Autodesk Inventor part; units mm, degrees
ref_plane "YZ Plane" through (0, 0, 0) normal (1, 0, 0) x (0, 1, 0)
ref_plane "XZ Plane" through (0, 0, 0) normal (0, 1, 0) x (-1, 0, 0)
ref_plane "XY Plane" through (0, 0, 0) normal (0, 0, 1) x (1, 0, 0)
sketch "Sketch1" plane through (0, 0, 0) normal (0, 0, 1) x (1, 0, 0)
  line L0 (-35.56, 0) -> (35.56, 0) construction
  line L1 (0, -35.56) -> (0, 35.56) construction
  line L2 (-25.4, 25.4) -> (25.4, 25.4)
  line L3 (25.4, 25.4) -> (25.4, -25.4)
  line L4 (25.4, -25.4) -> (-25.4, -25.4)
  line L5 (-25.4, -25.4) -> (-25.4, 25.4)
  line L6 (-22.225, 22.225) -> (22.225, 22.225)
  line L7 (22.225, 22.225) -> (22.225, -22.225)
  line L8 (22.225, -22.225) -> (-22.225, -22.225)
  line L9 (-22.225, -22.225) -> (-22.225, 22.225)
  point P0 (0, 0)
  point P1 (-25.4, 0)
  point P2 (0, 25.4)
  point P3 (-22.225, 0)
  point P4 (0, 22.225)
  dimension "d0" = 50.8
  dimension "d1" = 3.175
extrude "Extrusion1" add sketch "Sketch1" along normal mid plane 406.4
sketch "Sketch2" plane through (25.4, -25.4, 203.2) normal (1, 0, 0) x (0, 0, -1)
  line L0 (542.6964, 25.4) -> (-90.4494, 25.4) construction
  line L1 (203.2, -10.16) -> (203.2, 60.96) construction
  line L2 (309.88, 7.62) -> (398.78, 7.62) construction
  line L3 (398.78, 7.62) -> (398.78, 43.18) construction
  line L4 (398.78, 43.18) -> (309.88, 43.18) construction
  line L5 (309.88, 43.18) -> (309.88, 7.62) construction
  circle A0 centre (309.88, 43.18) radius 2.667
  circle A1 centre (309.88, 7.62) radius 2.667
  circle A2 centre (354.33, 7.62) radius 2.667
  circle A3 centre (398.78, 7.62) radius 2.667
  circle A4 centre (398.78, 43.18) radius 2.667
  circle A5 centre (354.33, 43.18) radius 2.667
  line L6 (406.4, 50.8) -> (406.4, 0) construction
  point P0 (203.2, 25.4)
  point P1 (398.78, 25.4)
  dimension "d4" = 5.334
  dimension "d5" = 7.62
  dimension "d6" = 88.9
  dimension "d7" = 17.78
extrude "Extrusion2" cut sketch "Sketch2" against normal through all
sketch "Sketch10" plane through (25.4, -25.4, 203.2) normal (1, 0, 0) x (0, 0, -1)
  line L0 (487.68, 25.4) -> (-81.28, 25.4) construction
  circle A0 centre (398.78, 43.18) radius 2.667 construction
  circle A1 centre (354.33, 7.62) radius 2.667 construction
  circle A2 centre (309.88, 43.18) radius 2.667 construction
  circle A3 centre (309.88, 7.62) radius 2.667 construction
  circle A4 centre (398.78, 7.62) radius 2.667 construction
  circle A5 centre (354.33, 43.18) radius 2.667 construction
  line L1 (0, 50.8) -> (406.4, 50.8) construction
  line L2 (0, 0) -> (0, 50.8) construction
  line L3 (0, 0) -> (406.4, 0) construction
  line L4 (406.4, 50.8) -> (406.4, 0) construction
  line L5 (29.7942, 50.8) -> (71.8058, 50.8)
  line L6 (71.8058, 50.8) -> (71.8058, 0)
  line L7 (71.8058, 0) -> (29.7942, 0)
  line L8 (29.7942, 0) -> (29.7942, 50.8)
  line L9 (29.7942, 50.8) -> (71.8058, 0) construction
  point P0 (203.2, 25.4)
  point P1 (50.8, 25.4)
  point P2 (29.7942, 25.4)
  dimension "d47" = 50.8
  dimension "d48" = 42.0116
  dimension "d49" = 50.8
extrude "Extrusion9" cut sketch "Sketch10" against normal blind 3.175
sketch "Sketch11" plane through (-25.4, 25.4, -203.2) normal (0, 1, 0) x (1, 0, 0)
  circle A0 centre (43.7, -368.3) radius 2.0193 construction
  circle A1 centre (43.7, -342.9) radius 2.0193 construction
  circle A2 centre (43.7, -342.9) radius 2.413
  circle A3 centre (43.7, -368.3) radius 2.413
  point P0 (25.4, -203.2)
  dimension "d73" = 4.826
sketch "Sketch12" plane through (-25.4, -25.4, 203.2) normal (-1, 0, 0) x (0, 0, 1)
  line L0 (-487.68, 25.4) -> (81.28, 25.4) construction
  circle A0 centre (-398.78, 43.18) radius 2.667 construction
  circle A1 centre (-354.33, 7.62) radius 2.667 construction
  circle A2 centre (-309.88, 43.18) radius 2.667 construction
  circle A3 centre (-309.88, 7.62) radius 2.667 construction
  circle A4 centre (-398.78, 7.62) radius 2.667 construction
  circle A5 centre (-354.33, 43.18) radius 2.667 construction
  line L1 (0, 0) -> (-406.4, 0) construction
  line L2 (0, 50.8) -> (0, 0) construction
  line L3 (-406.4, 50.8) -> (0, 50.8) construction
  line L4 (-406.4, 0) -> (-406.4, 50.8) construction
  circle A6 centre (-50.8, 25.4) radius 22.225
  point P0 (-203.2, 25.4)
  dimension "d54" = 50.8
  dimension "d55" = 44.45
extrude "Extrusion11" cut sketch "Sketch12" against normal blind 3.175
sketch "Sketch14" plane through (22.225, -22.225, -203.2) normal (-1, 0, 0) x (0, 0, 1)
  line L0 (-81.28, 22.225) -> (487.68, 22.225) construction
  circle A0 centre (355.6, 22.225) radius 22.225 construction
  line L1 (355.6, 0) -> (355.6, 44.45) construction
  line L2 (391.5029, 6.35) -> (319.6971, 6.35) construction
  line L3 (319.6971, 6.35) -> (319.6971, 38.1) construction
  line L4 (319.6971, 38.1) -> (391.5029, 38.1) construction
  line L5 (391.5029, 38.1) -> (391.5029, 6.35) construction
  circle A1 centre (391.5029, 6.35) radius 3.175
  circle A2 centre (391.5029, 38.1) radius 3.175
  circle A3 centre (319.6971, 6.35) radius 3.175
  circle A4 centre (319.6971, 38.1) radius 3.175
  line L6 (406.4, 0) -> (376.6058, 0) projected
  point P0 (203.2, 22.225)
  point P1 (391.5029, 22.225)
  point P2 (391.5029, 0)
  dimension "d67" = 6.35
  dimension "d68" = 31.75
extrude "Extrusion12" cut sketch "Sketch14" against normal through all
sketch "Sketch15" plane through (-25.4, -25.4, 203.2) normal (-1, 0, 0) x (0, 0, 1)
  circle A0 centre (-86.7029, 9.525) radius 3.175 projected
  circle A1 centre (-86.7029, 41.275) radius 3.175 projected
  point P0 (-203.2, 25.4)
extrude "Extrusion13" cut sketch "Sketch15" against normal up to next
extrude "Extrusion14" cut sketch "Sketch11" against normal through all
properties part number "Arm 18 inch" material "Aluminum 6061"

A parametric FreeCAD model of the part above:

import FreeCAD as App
import Part
import Sketcher
Q = App.Units.Quantity


def add_polygon(sketch, points):
    """Adds a closed chain of lines whose ends are joined by coincident constraints."""
    first, n = sketch.GeometryCount, len(points)
    for a, b in zip(points, points[1:] + points[:1]):
        sketch.addGeometry(Part.LineSegment(App.Vector(*a, 0), App.Vector(*b, 0)), False)
    for i in range(n):
        sketch.addConstraint(Sketcher.Constraint("Coincident", first + i, 2, first + (i + 1) % n, 1))

doc = App.newDocument("Part")
body = doc.addObject("PartDesign::Body", "Body")

sketch1 = body.newObject("Sketcher::SketchObject", "Sketch")
sketch1.AttachmentSupport = (doc.getObject("XY_Plane"), [""])
sketch1.MapMode = "FlatFace"
add_polygon(sketch1, [(25, 25), (-25, 25), (-25, -25), (25, -25)])
add_polygon(sketch1, [(-22, -22), (-22, 22), (22, 22), (22, -22)])
sketch1.addConstraint(Sketcher.Constraint("Horizontal", 0))
sketch1.addConstraint(Sketcher.Constraint("Vertical", 1))
sketch1.addConstraint(Sketcher.Constraint("Horizontal", 2))
sketch1.addConstraint(Sketcher.Constraint("Vertical", 3))
sketch1.addConstraint(Sketcher.Constraint("Vertical", 4))
sketch1.addConstraint(Sketcher.Constraint("Horizontal", 5))
sketch1.addConstraint(Sketcher.Constraint("Vertical", 6))
sketch1.addConstraint(Sketcher.Constraint("Horizontal", 7))
sketch1.addConstraint(Sketcher.Constraint("Symmetric", 0, 2, 2, 2, -1, 1))
sketch1.addConstraint(Sketcher.Constraint("Symmetric", 4, 2, 6, 2, -1, 1))
sketch1.addConstraint(Sketcher.Constraint("Equal", 2, 1))
sketch1.addConstraint(Sketcher.Constraint("Equal", 7, 4))
sketch1.addConstraint(Sketcher.Constraint("DistanceX", 0, 2, 0, 1, Q("2 in")))
sketch1.addConstraint(Sketcher.Constraint("DistanceX", 0, 2, 4, 2, Q("0.125 in")))
pad1 = body.newObject("PartDesign::Pad", "Pad")
pad1.Profile = sketch1
pad1.Length = Q("16 in")
pad1.Midplane = True

sketch2 = body.newObject("Sketcher::SketchObject", "Sketch001")
sketch2.AttachmentSupport = (doc.getObject("YZ_Plane"), [""])
sketch2.MapMode = "FlatFace"
sketch2.AttachmentOffset = App.Placement(App.Vector(0, 0, 1 * 25.4), App.Rotation())
sketch2.addGeometry(Part.Circle(App.Vector(17.8, -106.7, 0), App.Vector(0, 0, 1), 2.7), False)
sketch2.addGeometry(Part.Circle(App.Vector(-17.8, -106.7, 0), App.Vector(0, 0, 1), 2.7), False)
sketch2.addGeometry(Part.Circle(App.Vector(-17.8, -151.1, 0), App.Vector(0, 0, 1), 2.7), False)
sketch2.addGeometry(Part.Circle(App.Vector(-17.8, -195.6, 0), App.Vector(0, 0, 1), 2.7), False)
sketch2.addGeometry(Part.Circle(App.Vector(17.8, -195.6, 0), App.Vector(0, 0, 1), 2.7), False)
sketch2.addGeometry(Part.Circle(App.Vector(17.8, -151.1, 0), App.Vector(0, 0, 1), 2.7), False)
sketch2.addConstraint(Sketcher.Constraint("Equal", 0, 1))
sketch2.addConstraint(Sketcher.Constraint("Equal", 1, 2))
sketch2.addConstraint(Sketcher.Constraint("Equal", 2, 3))
sketch2.addConstraint(Sketcher.Constraint("Equal", 3, 4))
sketch2.addConstraint(Sketcher.Constraint("Equal", 4, 5))
sketch2.addConstraint(Sketcher.Constraint("Symmetric", 0, 3, 1, 3, -2))
sketch2.addConstraint(Sketcher.Constraint("Symmetric", 3, 3, 4, 3, -2))
sketch2.addConstraint(Sketcher.Constraint("Symmetric", 2, 3, 5, 3, -2))
sketch2.addConstraint(Sketcher.Constraint("Vertical", 1, 3, 2, 3))
sketch2.addConstraint(Sketcher.Constraint("Vertical", 2, 3, 3, 3))
sketch2.addConstraint(Sketcher.Constraint("Diameter", 0, Q("0.21 in")))
sketch2.addConstraint(Sketcher.Constraint("DistanceX", -1, 1, 0, 3, Q("0.7 in")))
sketch2.addConstraint(Sketcher.Constraint("DistanceY", 3, 3, 1, 3, Q("3.5 in")))
sketch2.addConstraint(Sketcher.Constraint("DistanceY", 0, 3, -1, 1, Q("4.2 in")))
sketch2.addConstraint(Sketcher.Constraint("DistanceY", 2, 3, -1, 1, Q("5.95 in")))
pocket1 = body.newObject("PartDesign::Pocket", "Pocket")
pocket1.Profile = sketch2
pocket1.Type = "ThroughAll"

sketch3 = body.newObject("Sketcher::SketchObject", "Sketch002")
sketch3.AttachmentSupport = (doc.getObject("YZ_Plane"), [""])
sketch3.MapMode = "FlatFace"
sketch3.AttachmentOffset = App.Placement(App.Vector(0, 0, 1 * 25.4), App.Rotation())
add_polygon(sketch3, [(25, 131), (25, 173), (-25, 173), (-25, 131)])
sketch3.addConstraint(Sketcher.Constraint("Vertical", 0))
sketch3.addConstraint(Sketcher.Constraint("Horizontal", 1))
sketch3.addConstraint(Sketcher.Constraint("Vertical", 2))
sketch3.addConstraint(Sketcher.Constraint("Horizontal", 3))
sketch3.addConstraint(Sketcher.Constraint("DistanceX", 1, 2, 1, 1, Q("2 in")))
sketch3.addConstraint(Sketcher.Constraint("DistanceY", 0, 1, 0, 2, Q("1.654 in")))
sketch3.addConstraint(Sketcher.Constraint("DistanceX", -1, 1, 0, 2, Q("1 in")))
sketch3.addConstraint(Sketcher.Constraint("DistanceY", -1, 1, 0, 2, Q("6.827 in")))
pocket2 = body.newObject("PartDesign::Pocket", "Pocket001")
pocket2.Profile = sketch3
pocket2.Length = Q("0.125 in")

sketch4 = body.newObject("Sketcher::SketchObject", "Sketch003")
sketch4.AttachmentSupport = (doc.getObject("YZ_Plane"), [""])
sketch4.MapMode = "FlatFace"
sketch4.AttachmentOffset = App.Placement(App.Vector(0, 0, -1 * 25.4), App.Rotation())
sketch4.addGeometry(Part.Circle(App.Vector(0, 152, 0), App.Vector(0, 0, 1), 22), False)
sketch4.addConstraint(Sketcher.Constraint("PointOnObject", 0, 3, -2))
sketch4.addConstraint(Sketcher.Constraint("Diameter", 0, Q("1.75 in")))
sketch4.addConstraint(Sketcher.Constraint("DistanceY", -1, 1, 0, 3, Q("6 in")))
pocket3 = body.newObject("PartDesign::Pocket", "Pocket002")
pocket3.Profile = sketch4
pocket3.Length = Q("0.125 in")
pocket3.Reversed = True

sketch5 = body.newObject("Sketcher::SketchObject", "Sketch004")
sketch5.AttachmentSupport = (doc.getObject("YZ_Plane"), [""])
sketch5.MapMode = "FlatFace"
sketch5.AttachmentOffset = App.Placement(App.Vector(0, 0, 0.875 * 25.4), App.Rotation())
sketch5.addGeometry(Part.Circle(App.Vector(-15.9, 188.3, 0), App.Vector(0, 0, 1), 3.2), False)
sketch5.addGeometry(Part.Circle(App.Vector(15.9, 188.3, 0), App.Vector(0, 0, 1), 3.2), False)
sketch5.addGeometry(Part.Circle(App.Vector(-15.9, 116.5, 0), App.Vector(0, 0, 1), 3.2), False)
sketch5.addGeometry(Part.Circle(App.Vector(15.9, 116.5, 0), App.Vector(0, 0, 1), 3.2), False)
sketch5.addConstraint(Sketcher.Constraint("Equal", 0, 1))
sketch5.addConstraint(Sketcher.Constraint("Equal", 1, 2))
sketch5.addConstraint(Sketcher.Constraint("Equal", 2, 3))
sketch5.addConstraint(Sketcher.Constraint("Symmetric", 0, 3, 1, 3, -2))
sketch5.addConstraint(Sketcher.Constraint("Symmetric", 2, 3, 3, 3, -2))
sketch5.addConstraint(Sketcher.Constraint("Vertical", 0, 3, 2, 3))
sketch5.addConstraint(Sketcher.Constraint("Diameter", 0, Q("0.25 in")))
sketch5.addConstraint(Sketcher.Constraint("DistanceX", 0, 3, 1, 3, Q("1.25 in")))
sketch5.addConstraint(Sketcher.Constraint("DistanceY", 2, 3, 0, 3, Q("2.827 in")))
sketch5.addConstraint(Sketcher.Constraint("DistanceY", -1, 1, 0, 3, Q("7.4135 in")))
pocket4 = body.newObject("PartDesign::Pocket", "Pocket003")
pocket4.Profile = sketch5
pocket4.Type = "ThroughAll"
pocket4.Reversed = True

sketch6 = body.newObject("Sketcher::SketchObject", "Sketch005")
sketch6.AttachmentSupport = (doc.getObject("YZ_Plane"), [""])
sketch6.MapMode = "FlatFace"
sketch6.AttachmentOffset = App.Placement(App.Vector(0, 0, -1 * 25.4), App.Rotation())
sketch6.addGeometry(Part.Circle(App.Vector(-15.9, 116.5, 0), App.Vector(0, 0, 1), 3.2), False)
sketch6.addGeometry(Part.Circle(App.Vector(15.9, 116.5, 0), App.Vector(0, 0, 1), 3.2), False)
sketch6.addConstraint(Sketcher.Constraint("Equal", 0, 1))
sketch6.addConstraint(Sketcher.Constraint("Symmetric", 0, 3, 1, 3, -2))
sketch6.addConstraint(Sketcher.Constraint("Diameter", 0, Q("0.25 in")))
sketch6.addConstraint(Sketcher.Constraint("DistanceX", 0, 3, 1, 3, Q("1.25 in")))
sketch6.addConstraint(Sketcher.Constraint("DistanceY", -1, 1, 0, 3, Q("4.5865 in")))
pocket5 = body.newObject("PartDesign::Pocket", "Pocket004")
pocket5.Profile = sketch6
pocket5.Type = "UpToFirst"
pocket5.Reversed = True

sketch7 = body.newObject("Sketcher::SketchObject", "Sketch006")
sketch7.AttachmentSupport = (doc.getObject("XZ_Plane"), [""])
sketch7.MapMode = "FlatFace"
sketch7.AttachmentOffset = App.Placement(App.Vector(0, 0, -1 * 25.4), App.Rotation())
sketch7.addGeometry(Part.Circle(App.Vector(18.3, 139.7, 0), App.Vector(0, 0, 1), 2.4), False)
sketch7.addGeometry(Part.Circle(App.Vector(18.3, 165.1, 0), App.Vector(0, 0, 1), 2.4), False)
sketch7.addConstraint(Sketcher.Constraint("Equal", 0, 1))
sketch7.addConstraint(Sketcher.Constraint("Vertical", 0, 3, 1, 3))
sketch7.addConstraint(Sketcher.Constraint("Diameter", 0, Q("0.19 in")))
sketch7.addConstraint(Sketcher.Constraint("DistanceY", 0, 3, 1, 3, Q("1 in")))
sketch7.addConstraint(Sketcher.Constraint("DistanceY", -1, 1, 0, 3, Q("5.5 in")))
sketch7.addConstraint(Sketcher.Constraint("DistanceX", -1, 1, 0, 3, Q("18.3 mm")))
pocket6 = body.newObject("PartDesign::Pocket", "Pocket005")
pocket6.Profile = sketch7
pocket6.Type = "ThroughAll"
pocket6.Reversed = True

doc.recompute()
